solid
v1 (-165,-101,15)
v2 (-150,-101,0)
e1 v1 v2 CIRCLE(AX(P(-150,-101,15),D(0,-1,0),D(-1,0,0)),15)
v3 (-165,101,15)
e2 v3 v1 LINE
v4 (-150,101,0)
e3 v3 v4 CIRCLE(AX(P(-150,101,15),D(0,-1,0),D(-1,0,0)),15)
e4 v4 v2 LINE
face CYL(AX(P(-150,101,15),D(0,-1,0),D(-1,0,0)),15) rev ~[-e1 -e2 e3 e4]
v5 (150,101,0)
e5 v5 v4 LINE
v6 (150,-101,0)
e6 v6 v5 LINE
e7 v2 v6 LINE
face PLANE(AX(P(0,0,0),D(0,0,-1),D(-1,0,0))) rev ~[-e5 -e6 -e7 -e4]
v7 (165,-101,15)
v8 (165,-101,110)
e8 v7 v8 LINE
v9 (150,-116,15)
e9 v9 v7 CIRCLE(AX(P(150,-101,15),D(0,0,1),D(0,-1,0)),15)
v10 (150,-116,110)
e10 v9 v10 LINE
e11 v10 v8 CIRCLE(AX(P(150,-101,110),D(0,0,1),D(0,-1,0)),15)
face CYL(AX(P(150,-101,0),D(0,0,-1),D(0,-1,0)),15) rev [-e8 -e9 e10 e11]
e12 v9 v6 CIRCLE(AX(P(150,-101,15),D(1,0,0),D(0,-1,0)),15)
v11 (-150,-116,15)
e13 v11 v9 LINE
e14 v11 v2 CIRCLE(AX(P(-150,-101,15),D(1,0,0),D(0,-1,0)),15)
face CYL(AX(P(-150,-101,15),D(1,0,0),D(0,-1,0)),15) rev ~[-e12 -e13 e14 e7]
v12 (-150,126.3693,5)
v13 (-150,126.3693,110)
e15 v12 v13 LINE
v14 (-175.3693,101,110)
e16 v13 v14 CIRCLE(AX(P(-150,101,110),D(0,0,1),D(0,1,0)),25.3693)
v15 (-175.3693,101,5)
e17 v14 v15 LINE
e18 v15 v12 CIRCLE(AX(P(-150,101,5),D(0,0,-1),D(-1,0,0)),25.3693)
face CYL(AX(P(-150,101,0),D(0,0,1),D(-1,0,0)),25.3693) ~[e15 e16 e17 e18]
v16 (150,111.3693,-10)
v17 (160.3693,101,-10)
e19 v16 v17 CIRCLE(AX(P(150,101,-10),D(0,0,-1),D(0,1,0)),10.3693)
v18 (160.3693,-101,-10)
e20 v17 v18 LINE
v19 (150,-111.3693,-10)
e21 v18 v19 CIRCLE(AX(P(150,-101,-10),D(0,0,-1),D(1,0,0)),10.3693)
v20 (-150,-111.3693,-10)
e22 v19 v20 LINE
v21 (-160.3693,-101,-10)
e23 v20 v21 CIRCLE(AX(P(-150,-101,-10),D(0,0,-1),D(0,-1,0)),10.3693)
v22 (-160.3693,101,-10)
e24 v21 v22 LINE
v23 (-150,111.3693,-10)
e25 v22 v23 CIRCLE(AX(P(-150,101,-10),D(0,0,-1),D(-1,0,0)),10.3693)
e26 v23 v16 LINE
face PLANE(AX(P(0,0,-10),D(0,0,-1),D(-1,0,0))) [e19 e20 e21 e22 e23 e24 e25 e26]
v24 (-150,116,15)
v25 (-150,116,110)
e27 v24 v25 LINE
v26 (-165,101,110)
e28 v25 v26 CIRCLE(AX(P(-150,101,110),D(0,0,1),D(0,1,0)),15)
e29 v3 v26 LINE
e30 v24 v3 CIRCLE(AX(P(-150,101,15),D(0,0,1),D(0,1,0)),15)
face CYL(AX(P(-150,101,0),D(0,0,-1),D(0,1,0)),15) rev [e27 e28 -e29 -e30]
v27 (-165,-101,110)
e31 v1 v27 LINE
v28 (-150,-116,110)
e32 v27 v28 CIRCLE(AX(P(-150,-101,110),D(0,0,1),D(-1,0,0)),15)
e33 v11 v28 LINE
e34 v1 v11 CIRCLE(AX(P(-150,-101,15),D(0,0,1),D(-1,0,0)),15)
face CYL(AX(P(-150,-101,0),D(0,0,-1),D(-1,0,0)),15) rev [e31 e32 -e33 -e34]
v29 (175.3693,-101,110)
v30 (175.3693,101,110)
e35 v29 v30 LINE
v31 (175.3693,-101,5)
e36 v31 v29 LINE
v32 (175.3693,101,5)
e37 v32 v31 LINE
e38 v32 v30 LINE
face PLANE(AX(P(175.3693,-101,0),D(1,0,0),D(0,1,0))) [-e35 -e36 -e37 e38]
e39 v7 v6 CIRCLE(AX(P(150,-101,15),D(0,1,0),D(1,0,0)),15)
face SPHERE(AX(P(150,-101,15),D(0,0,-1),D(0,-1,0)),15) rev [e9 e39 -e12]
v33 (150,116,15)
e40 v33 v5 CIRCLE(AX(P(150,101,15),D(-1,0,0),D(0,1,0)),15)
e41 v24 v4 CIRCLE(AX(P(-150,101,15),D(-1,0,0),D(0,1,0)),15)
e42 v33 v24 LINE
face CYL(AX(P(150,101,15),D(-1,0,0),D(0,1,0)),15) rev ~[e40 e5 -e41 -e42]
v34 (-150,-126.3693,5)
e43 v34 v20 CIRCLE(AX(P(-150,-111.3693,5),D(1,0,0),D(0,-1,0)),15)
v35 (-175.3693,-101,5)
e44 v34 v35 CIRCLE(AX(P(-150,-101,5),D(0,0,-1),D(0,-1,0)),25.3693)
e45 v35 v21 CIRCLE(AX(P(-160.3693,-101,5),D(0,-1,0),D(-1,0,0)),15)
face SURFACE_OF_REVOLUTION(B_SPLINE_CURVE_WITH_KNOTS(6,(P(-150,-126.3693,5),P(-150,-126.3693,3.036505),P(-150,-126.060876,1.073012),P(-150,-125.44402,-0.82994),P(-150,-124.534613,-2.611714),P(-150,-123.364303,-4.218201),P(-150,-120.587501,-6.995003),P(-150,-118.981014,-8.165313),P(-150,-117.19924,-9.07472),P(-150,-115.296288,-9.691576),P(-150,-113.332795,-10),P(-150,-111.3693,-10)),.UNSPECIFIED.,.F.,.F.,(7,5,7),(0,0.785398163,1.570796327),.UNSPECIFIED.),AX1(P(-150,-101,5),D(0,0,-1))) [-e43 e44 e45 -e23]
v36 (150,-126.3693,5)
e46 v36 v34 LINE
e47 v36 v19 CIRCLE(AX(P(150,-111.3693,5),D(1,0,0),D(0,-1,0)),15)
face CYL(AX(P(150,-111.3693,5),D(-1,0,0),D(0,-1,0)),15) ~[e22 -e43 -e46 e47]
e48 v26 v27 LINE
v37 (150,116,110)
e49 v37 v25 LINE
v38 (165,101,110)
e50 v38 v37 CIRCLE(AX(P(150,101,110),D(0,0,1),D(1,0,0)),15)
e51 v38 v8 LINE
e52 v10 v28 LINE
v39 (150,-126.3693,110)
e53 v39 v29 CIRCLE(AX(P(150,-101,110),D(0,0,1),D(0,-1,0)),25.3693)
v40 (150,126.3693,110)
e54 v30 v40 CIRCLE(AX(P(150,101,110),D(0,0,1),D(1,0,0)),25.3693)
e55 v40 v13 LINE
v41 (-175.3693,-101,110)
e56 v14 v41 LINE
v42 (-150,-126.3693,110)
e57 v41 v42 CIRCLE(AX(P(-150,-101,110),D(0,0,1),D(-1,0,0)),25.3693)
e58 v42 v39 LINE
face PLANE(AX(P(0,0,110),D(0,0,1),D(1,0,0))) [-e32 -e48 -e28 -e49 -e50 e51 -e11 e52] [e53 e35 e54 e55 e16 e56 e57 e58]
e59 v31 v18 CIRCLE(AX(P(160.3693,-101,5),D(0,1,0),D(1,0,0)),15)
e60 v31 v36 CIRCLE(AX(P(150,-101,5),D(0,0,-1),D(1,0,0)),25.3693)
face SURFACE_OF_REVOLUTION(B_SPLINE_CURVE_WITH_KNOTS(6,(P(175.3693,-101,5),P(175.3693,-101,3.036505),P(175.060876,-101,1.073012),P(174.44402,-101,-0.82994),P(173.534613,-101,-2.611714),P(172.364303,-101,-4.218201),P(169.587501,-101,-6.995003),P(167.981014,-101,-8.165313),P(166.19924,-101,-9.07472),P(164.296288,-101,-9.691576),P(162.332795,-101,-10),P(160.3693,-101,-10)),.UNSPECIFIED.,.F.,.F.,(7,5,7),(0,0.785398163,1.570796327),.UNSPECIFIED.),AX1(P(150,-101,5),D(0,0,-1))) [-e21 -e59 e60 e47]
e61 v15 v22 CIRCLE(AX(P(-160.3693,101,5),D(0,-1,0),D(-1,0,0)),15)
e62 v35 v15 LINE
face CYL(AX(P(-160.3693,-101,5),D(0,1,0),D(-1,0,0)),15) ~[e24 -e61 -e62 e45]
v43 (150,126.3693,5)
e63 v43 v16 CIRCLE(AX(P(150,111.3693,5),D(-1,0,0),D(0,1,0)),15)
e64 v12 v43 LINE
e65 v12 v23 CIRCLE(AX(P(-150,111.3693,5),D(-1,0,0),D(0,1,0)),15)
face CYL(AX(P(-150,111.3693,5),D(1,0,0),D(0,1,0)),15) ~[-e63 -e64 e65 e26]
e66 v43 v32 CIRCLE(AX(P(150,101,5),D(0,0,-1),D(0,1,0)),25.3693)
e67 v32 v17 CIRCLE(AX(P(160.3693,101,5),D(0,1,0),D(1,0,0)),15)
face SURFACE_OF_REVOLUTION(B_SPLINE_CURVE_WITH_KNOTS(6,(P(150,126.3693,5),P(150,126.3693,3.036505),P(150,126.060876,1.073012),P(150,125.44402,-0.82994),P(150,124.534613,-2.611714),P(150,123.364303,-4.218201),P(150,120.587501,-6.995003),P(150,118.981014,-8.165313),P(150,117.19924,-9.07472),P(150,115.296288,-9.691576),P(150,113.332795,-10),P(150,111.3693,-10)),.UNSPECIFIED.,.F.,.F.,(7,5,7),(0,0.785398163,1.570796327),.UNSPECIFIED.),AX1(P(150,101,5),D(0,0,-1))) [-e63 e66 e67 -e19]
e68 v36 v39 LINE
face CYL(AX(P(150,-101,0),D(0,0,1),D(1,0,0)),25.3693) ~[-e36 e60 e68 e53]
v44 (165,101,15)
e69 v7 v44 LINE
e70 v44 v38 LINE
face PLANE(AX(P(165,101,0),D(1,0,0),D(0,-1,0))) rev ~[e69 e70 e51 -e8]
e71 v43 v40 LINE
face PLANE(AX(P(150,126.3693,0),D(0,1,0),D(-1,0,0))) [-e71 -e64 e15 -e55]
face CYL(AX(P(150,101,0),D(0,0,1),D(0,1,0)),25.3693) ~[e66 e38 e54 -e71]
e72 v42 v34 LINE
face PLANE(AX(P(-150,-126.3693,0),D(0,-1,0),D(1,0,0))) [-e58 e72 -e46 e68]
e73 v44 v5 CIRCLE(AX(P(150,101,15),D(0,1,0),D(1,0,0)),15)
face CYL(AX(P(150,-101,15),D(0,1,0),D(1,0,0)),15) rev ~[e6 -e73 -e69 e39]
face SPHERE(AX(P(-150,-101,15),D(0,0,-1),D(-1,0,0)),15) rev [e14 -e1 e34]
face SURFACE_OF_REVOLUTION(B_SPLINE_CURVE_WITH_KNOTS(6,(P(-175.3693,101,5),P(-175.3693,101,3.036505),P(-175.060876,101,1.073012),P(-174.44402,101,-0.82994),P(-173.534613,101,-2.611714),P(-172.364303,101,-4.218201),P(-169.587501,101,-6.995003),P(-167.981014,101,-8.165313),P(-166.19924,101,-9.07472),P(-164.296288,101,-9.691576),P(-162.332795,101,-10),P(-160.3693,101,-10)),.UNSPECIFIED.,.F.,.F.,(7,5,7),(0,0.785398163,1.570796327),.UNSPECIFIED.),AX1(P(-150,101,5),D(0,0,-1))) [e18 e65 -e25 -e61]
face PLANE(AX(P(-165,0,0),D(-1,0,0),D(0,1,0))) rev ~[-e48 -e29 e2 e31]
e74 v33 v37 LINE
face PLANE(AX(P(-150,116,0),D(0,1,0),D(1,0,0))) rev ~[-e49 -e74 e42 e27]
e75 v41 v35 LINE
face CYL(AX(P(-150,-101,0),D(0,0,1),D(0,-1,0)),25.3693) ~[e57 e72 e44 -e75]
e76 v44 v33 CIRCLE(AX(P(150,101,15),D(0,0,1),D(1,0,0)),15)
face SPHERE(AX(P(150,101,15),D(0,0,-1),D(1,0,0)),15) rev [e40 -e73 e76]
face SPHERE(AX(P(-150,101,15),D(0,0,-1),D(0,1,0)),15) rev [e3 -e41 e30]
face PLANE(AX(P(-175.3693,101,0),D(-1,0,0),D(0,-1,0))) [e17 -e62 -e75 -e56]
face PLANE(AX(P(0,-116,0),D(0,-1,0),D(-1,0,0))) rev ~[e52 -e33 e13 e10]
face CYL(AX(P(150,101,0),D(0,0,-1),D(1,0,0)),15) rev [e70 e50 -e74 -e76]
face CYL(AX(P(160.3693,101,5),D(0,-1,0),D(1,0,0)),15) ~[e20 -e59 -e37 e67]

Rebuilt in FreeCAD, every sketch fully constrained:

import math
import FreeCAD as App
import Part
import Sketcher

V = App.Vector


def edges_at(feature, points):
    """Names of the edges that pass closest to the given points."""
    edges = feature.Shape.Edges
    near = lambda p: min(range(len(edges)), key=lambda i: edges[i].distToShape(Part.Vertex(*p))[0])
    return sorted({f"Edge{near(p) + 1}" for p in points})

doc = App.newDocument("Part")
body = doc.addObject("PartDesign::Body", "Body")

# Sketch on XY plane
sketch1 = doc.addObject("Sketcher::SketchObject", "Sketch")
body.addObject(sketch1)
sketch1.AttachmentSupport = (doc.XY_Plane, [""])
sketch1.MapMode = "FlatFace"
sketch1.addGeometry([
    Part.LineSegment(V(-175, 101, 0), V(-175, -101, 0)),  # 0
    Part.ArcOfCircle(Part.Circle(V(-150, -101, 0), V(0, 0, 1), 25), math.radians(180), math.radians(270)),  # 1
    Part.LineSegment(V(-150, -126, 0), V(150, -126, 0)),  # 2
    Part.ArcOfCircle(Part.Circle(V(150, -101, 0), V(0, 0, 1), 25), math.radians(-90), math.radians(0)),  # 3
    Part.LineSegment(V(175, -101, 0), V(175, 101, 0)),  # 4
    Part.ArcOfCircle(Part.Circle(V(150, 101, 0), V(0, 0, 1), 25), math.radians(0), math.radians(90)),  # 5
    Part.LineSegment(V(150, 126, 0), V(-150, 126, 0)),  # 6
    Part.ArcOfCircle(Part.Circle(V(-150, 101, 0), V(0, 0, 1), 25), math.radians(90), math.radians(180)),  # 7
    Part.ArcOfCircle(Part.Circle(V(-150, 101, 0), V(0, 0, 1), 15), math.radians(90), math.radians(180)),  # 8
    Part.LineSegment(V(-150, 116, 0), V(150, 116, 0)),  # 9
    Part.ArcOfCircle(Part.Circle(V(150, 101, 0), V(0, 0, 1), 15), math.radians(0), math.radians(90)),  # 10
    Part.LineSegment(V(165, 101, 0), V(165, -101, 0)),  # 11
    Part.ArcOfCircle(Part.Circle(V(150, -101, 0), V(0, 0, 1), 15), math.radians(-90), math.radians(0)),  # 12
    Part.LineSegment(V(150, -116, 0), V(-150, -116, 0)),  # 13
    Part.ArcOfCircle(Part.Circle(V(-150, -101, 0), V(0, 0, 1), 15), math.radians(180), math.radians(270)),  # 14
    Part.LineSegment(V(-165, -101, 0), V(-165, 101, 0)),  # 15
], False)
sketch1.addConstraint([
    Sketcher.Constraint("Tangent", 0, 2, 1, 1),
    Sketcher.Constraint("Tangent", 1, 2, 2, 1),
    Sketcher.Constraint("Tangent", 2, 2, 3, 1),
    Sketcher.Constraint("Tangent", 3, 2, 4, 1),
    Sketcher.Constraint("Tangent", 4, 2, 5, 1),
    Sketcher.Constraint("Tangent", 5, 2, 6, 1),
    Sketcher.Constraint("Tangent", 6, 2, 7, 1),
    Sketcher.Constraint("Tangent", 7, 2, 0, 1),
    Sketcher.Constraint("Tangent", 8, 1, 9, 1),
    Sketcher.Constraint("Tangent", 9, 2, 10, 2),
    Sketcher.Constraint("Tangent", 10, 1, 11, 1),
    Sketcher.Constraint("Tangent", 11, 2, 12, 2),
    Sketcher.Constraint("Tangent", 12, 1, 13, 1),
    Sketcher.Constraint("Tangent", 13, 2, 14, 2),
    Sketcher.Constraint("Tangent", 14, 1, 15, 1),
    Sketcher.Constraint("Tangent", 15, 2, 8, 2),
    Sketcher.Constraint("Vertical", 0),
    Sketcher.Constraint("Horizontal", 2),
    Sketcher.Constraint("Vertical", 4),
    Sketcher.Constraint("Horizontal", 6),
    Sketcher.Constraint("Horizontal", 9),
    Sketcher.Constraint("Vertical", 11),
    Sketcher.Constraint("Horizontal", 13),
    Sketcher.Constraint("Vertical", 15),
    Sketcher.Constraint("Coincident", 8, 3, 7, 3),
    Sketcher.Constraint("Coincident", 10, 3, 5, 3),
    Sketcher.Constraint("Coincident", 12, 3, 3, 3),
    Sketcher.Constraint("Equal", 1, 3),
    Sketcher.Constraint("Equal", 3, 5),
    Sketcher.Constraint("Equal", 5, 7),
    Sketcher.Constraint("Equal", 12, 14),
    Sketcher.Constraint("Symmetric", 1, 3, 5, 3, -1, 1),
    Sketcher.Constraint("Radius", 8, 15.0),
    Sketcher.Constraint("DistanceX", 2, 1, 2, 2, 300.0),
    Sketcher.Constraint("DistanceY", 0, 2, 0, 1, 202.0),
    Sketcher.Constraint("Radius", 1, 25.3693),
])
pad1 = doc.addObject("PartDesign::Pad", "Pad")
body.addObject(pad1)
pad1.Profile = sketch1
pad1.Length = 110

# Sketch on XY plane
sketch2 = doc.addObject("Sketcher::SketchObject", "Sketch001")
body.addObject(sketch2)
sketch2.AttachmentSupport = (doc.XY_Plane, [""])
sketch2.MapMode = "FlatFace"
sketch2.addGeometry([
    Part.LineSegment(V(150, -126, 0), V(-150, -126, 0)),  # 0
    Part.ArcOfCircle(Part.Circle(V(-150, -101, 0), V(0, 0, 1), 25), math.radians(180), math.radians(270)),  # 1
    Part.LineSegment(V(-175, -101, 0), V(-175, 101, 0)),  # 2
    Part.ArcOfCircle(Part.Circle(V(-150, 101, 0), V(0, 0, 1), 25), math.radians(90), math.radians(180)),  # 3
    Part.LineSegment(V(-150, 126, 0), V(150, 126, 0)),  # 4
    Part.ArcOfCircle(Part.Circle(V(150, 101, 0), V(0, 0, 1), 25), math.radians(0), math.radians(90)),  # 5
    Part.LineSegment(V(175, 101, 0), V(175, -101, 0)),  # 6
    Part.ArcOfCircle(Part.Circle(V(150, -101, 0), V(0, 0, 1), 25), math.radians(-90), math.radians(0)),  # 7
], False)
sketch2.addConstraint([
    Sketcher.Constraint("Tangent", 0, 2, 1, 2),
    Sketcher.Constraint("Tangent", 1, 1, 2, 1),
    Sketcher.Constraint("Tangent", 2, 2, 3, 2),
    Sketcher.Constraint("Tangent", 3, 1, 4, 1),
    Sketcher.Constraint("Tangent", 4, 2, 5, 2),
    Sketcher.Constraint("Tangent", 5, 1, 6, 1),
    Sketcher.Constraint("Tangent", 6, 2, 7, 2),
    Sketcher.Constraint("Tangent", 7, 1, 0, 1),
    Sketcher.Constraint("Horizontal", 0),
    Sketcher.Constraint("Vertical", 2),
    Sketcher.Constraint("Horizontal", 4),
    Sketcher.Constraint("Vertical", 6),
    Sketcher.Constraint("Equal", 1, 3),
    Sketcher.Constraint("Equal", 3, 5),
    Sketcher.Constraint("Equal", 5, 7),
    Sketcher.Constraint("Symmetric", 1, 3, 5, 3, -1, 1),
    Sketcher.Constraint("DistanceX", 0, 2, 0, 1, 300.0),
    Sketcher.Constraint("DistanceY", 2, 1, 2, 2, 202.0),
    Sketcher.Constraint("Radius", 1, 25.3693),
])
pad2 = doc.addObject("PartDesign::Pad", "Pad001")
body.addObject(pad2)
pad2.Profile = sketch2
pad2.Length = 10
pad2.Reversed = True
doc.recompute()

fillet = doc.addObject("PartDesign::Fillet", "Fillet")
body.addObject(fillet)
fillet.Base = (pad2, edges_at(pad2, [
    (-167.939, -118.939, -10),
    (-175.369, 0, -10),
    (-167.939, 118.939, -10),
    (0, 126.369, -10),
    (167.939, 118.939, -10),
    (175.369, 0, -10),
    (167.939, -118.939, -10),
    (0, -126.369, -10),
]))
fillet.Radius = 15
doc.recompute()

fillet2 = doc.addObject("PartDesign::Fillet", "Fillet001")
body.addObject(fillet2)
fillet2.Base = (fillet, edges_at(fillet, [
    (160.607, 111.607, 0),
    (165, 0, 0),
    (160.607, -111.607, 0),
    (0, -116, 0),
    (-160.607, -111.607, 0),
    (-165, 0, 0),
    (-160.607, 111.607, 0),
    (0, 116, 0),
]))
fillet2.Radius = 15

doc.recompute()
